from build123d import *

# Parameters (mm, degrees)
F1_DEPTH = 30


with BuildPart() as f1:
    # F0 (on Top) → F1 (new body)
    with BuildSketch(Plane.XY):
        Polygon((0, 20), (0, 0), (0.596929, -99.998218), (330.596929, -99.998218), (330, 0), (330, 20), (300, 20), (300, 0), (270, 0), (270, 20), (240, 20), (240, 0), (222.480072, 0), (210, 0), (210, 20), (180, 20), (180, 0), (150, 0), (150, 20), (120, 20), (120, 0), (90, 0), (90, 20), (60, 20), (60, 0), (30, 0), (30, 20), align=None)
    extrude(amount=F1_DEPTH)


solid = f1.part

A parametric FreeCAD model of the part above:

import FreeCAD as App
import Part
import Sketcher

V = App.Vector
Q = App.Units.Quantity

doc = App.newDocument("Part")
body = doc.addObject("PartDesign::Body", "Body")

sketch1 = doc.addObject("Sketcher::SketchObject", "Sketch")
body.addObject(sketch1)
sketch1.AttachmentSupport = (doc.XY_Plane, [""])
sketch1.MapMode = "FlatFace"
sketch1.addGeometry(Part.LineSegment(V(0, 20, 0), V(0, 0, 0)), False)
sketch1.addGeometry(Part.LineSegment(V(0, 0, 0), V(1, -100, 0)), False)
sketch1.addGeometry(Part.LineSegment(V(1, -100, 0), V(331, -100, 0)), False)
sketch1.addGeometry(Part.LineSegment(V(331, -100, 0), V(330, 0, 0)), False)
sketch1.addGeometry(Part.LineSegment(V(330, 0, 0), V(330, 20, 0)), False)
sketch1.addGeometry(Part.LineSegment(V(330, 20, 0), V(300, 20, 0)), False)
sketch1.addGeometry(Part.LineSegment(V(300, 20, 0), V(300, 0, 0)), False)
sketch1.addGeometry(Part.LineSegment(V(300, 0, 0), V(270, 0, 0)), False)
sketch1.addGeometry(Part.LineSegment(V(270, 0, 0), V(270, 20, 0)), False)
sketch1.addGeometry(Part.LineSegment(V(270, 20, 0), V(240, 20, 0)), False)
sketch1.addGeometry(Part.LineSegment(V(240, 20, 0), V(240, 0, 0)), False)
sketch1.addGeometry(Part.LineSegment(V(240, 0, 0), V(210, 0, 0)), False)
sketch1.addGeometry(Part.LineSegment(V(210, 0, 0), V(210, 20, 0)), False)
sketch1.addGeometry(Part.LineSegment(V(210, 20, 0), V(180, 20, 0)), False)
sketch1.addGeometry(Part.LineSegment(V(180, 20, 0), V(180, 0, 0)), False)
sketch1.addGeometry(Part.LineSegment(V(180, 0, 0), V(150, 0, 0)), False)
sketch1.addGeometry(Part.LineSegment(V(150, 0, 0), V(150, 20, 0)), False)
sketch1.addGeometry(Part.LineSegment(V(150, 20, 0), V(120, 20, 0)), False)
sketch1.addGeometry(Part.LineSegment(V(120, 20, 0), V(120, 0, 0)), False)
sketch1.addGeometry(Part.LineSegment(V(120, 0, 0), V(90, 0, 0)), False)
sketch1.addGeometry(Part.LineSegment(V(90, 0, 0), V(90, 20, 0)), False)
sketch1.addGeometry(Part.LineSegment(V(90, 20, 0), V(60, 20, 0)), False)
sketch1.addGeometry(Part.LineSegment(V(60, 20, 0), V(60, 0, 0)), False)
sketch1.addGeometry(Part.LineSegment(V(60, 0, 0), V(30, 0, 0)), False)
sketch1.addGeometry(Part.LineSegment(V(30, 0, 0), V(30, 20, 0)), False)
sketch1.addGeometry(Part.LineSegment(V(30, 20, 0), V(0, 20, 0)), False)
sketch1.addConstraint(Sketcher.Constraint("Coincident", 0, 2, 1, 1))
sketch1.addConstraint(Sketcher.Constraint("Coincident", 1, 2, 2, 1))
sketch1.addConstraint(Sketcher.Constraint("Coincident", 2, 2, 3, 1))
sketch1.addConstraint(Sketcher.Constraint("Coincident", 3, 2, 4, 1))
sketch1.addConstraint(Sketcher.Constraint("Coincident", 4, 2, 5, 1))
sketch1.addConstraint(Sketcher.Constraint("Coincident", 5, 2, 6, 1))
sketch1.addConstraint(Sketcher.Constraint("Coincident", 6, 2, 7, 1))
sketch1.addConstraint(Sketcher.Constraint("Coincident", 7, 2, 8, 1))
sketch1.addConstraint(Sketcher.Constraint("Coincident", 8, 2, 9, 1))
sketch1.addConstraint(Sketcher.Constraint("Coincident", 9, 2, 10, 1))
sketch1.addConstraint(Sketcher.Constraint("Coincident", 10, 2, 11, 1))
sketch1.addConstraint(Sketcher.Constraint("Coincident", 11, 2, 12, 1))
sketch1.addConstraint(Sketcher.Constraint("Coincident", 12, 2, 13, 1))
sketch1.addConstraint(Sketcher.Constraint("Coincident", 13, 2, 14, 1))
sketch1.addConstraint(Sketcher.Constraint("Coincident", 14, 2, 15, 1))
sketch1.addConstraint(Sketcher.Constraint("Coincident", 15, 2, 16, 1))
sketch1.addConstraint(Sketcher.Constraint("Coincident", 16, 2, 17, 1))
sketch1.addConstraint(Sketcher.Constraint("Coincident", 17, 2, 18, 1))
sketch1.addConstraint(Sketcher.Constraint("Coincident", 18, 2, 19, 1))
sketch1.addConstraint(Sketcher.Constraint("Coincident", 19, 2, 20, 1))
sketch1.addConstraint(Sketcher.Constraint("Coincident", 20, 2, 21, 1))
sketch1.addConstraint(Sketcher.Constraint("Coincident", 21, 2, 22, 1))
sketch1.addConstraint(Sketcher.Constraint("Coincident", 22, 2, 23, 1))
sketch1.addConstraint(Sketcher.Constraint("Coincident", 23, 2, 24, 1))
sketch1.addConstraint(Sketcher.Constraint("Coincident", 24, 2, 25, 1))
sketch1.addConstraint(Sketcher.Constraint("Coincident", 25, 2, 0, 1))
sketch1.addConstraint(Sketcher.Constraint("Vertical", 0))
sketch1.addConstraint(Sketcher.Constraint("Horizontal", 2))
sketch1.addConstraint(Sketcher.Constraint("Vertical", 4))
sketch1.addConstraint(Sketcher.Constraint("Horizontal", 5))
sketch1.addConstraint(Sketcher.Constraint("Vertical", 6))
sketch1.addConstraint(Sketcher.Constraint("Horizontal", 7))
sketch1.addConstraint(Sketcher.Constraint("Vertical", 8))
sketch1.addConstraint(Sketcher.Constraint("Horizontal", 9))
sketch1.addConstraint(Sketcher.Constraint("Vertical", 10))
sketch1.addConstraint(Sketcher.Constraint("Horizontal", 11))
sketch1.addConstraint(Sketcher.Constraint("Vertical", 12))
sketch1.addConstraint(Sketcher.Constraint("Horizontal", 13))
sketch1.addConstraint(Sketcher.Constraint("Vertical", 14))
sketch1.addConstraint(Sketcher.Constraint("Horizontal", 15))
sketch1.addConstraint(Sketcher.Constraint("Vertical", 16))
sketch1.addConstraint(Sketcher.Constraint("Horizontal", 17))
sketch1.addConstraint(Sketcher.Constraint("Vertical", 18))
sketch1.addConstraint(Sketcher.Constraint("Horizontal", 19))
sketch1.addConstraint(Sketcher.Constraint("Vertical", 20))
sketch1.addConstraint(Sketcher.Constraint("Horizontal", 21))
sketch1.addConstraint(Sketcher.Constraint("Vertical", 22))
sketch1.addConstraint(Sketcher.Constraint("Horizontal", 23))
sketch1.addConstraint(Sketcher.Constraint("Vertical", 24))
sketch1.addConstraint(Sketcher.Constraint("Horizontal", 25))
sketch1.addConstraint(Sketcher.Constraint("Coincident", 0, 2, -1, 1))
sketch1.addConstraint(Sketcher.Constraint("PointOnObject", 3, 2, -1))
sketch1.addConstraint(Sketcher.Constraint("PointOnObject", 6, 2, -1))
sketch1.addConstraint(Sketcher.Constraint("PointOnObject", 10, 2, -1))
sketch1.addConstraint(Sketcher.Constraint("PointOnObject", 14, 2, -1))
sketch1.addConstraint(Sketcher.Constraint("PointOnObject", 18, 2, -1))
sketch1.addConstraint(Sketcher.Constraint("PointOnObject", 22, 2, -1))
sketch1.addConstraint(Sketcher.Constraint("Parallel", 1, 3))
sketch1.addConstraint(Sketcher.Constraint("Horizontal", 5, 2, 8, 2))
sketch1.addConstraint(Sketcher.Constraint("Horizontal", 9, 2, 12, 2))
sketch1.addConstraint(Sketcher.Constraint("Horizontal", 13, 2, 16, 2))
sketch1.addConstraint(Sketcher.Constraint("Horizontal", 17, 2, 20, 2))
sketch1.addConstraint(Sketcher.Constraint("Horizontal", 21, 2, 24, 2))
sketch1.addConstraint(Sketcher.Constraint("Equal", 5, 7))
sketch1.addConstraint(Sketcher.Constraint("Equal", 7, 9))
sketch1.addConstraint(Sketcher.Constraint("Equal", 9, 11))
sketch1.addConstraint(Sketcher.Constraint("Equal", 11, 13))
sketch1.addConstraint(Sketcher.Constraint("Equal", 13, 15))
sketch1.addConstraint(Sketcher.Constraint("Equal", 15, 17))
sketch1.addConstraint(Sketcher.Constraint("Equal", 17, 19))
sketch1.addConstraint(Sketcher.Constraint("Equal", 19, 21))
sketch1.addConstraint(Sketcher.Constraint("Equal", 21, 23))
sketch1.addConstraint(Sketcher.Constraint("Equal", 23, 25))
sketch1.addConstraint(Sketcher.Constraint("DistanceX", 2, 1, 2, 2, Q("330 mm")))
sketch1.addConstraint(Sketcher.Constraint("DistanceY", 0, 2, 0, 1, Q("20 mm")))
sketch1.addConstraint(Sketcher.Constraint("Distance", 1, Q("100 mm")))
sketch1.addConstraint(Sketcher.Constraint("DistanceX", -1, 1, 1, 2, Q("0.596929 mm")))
pad1 = doc.addObject("PartDesign::Pad", "Pad")
body.addObject(pad1)
pad1.Profile = sketch1
pad1.Length = 30

doc.recompute()
